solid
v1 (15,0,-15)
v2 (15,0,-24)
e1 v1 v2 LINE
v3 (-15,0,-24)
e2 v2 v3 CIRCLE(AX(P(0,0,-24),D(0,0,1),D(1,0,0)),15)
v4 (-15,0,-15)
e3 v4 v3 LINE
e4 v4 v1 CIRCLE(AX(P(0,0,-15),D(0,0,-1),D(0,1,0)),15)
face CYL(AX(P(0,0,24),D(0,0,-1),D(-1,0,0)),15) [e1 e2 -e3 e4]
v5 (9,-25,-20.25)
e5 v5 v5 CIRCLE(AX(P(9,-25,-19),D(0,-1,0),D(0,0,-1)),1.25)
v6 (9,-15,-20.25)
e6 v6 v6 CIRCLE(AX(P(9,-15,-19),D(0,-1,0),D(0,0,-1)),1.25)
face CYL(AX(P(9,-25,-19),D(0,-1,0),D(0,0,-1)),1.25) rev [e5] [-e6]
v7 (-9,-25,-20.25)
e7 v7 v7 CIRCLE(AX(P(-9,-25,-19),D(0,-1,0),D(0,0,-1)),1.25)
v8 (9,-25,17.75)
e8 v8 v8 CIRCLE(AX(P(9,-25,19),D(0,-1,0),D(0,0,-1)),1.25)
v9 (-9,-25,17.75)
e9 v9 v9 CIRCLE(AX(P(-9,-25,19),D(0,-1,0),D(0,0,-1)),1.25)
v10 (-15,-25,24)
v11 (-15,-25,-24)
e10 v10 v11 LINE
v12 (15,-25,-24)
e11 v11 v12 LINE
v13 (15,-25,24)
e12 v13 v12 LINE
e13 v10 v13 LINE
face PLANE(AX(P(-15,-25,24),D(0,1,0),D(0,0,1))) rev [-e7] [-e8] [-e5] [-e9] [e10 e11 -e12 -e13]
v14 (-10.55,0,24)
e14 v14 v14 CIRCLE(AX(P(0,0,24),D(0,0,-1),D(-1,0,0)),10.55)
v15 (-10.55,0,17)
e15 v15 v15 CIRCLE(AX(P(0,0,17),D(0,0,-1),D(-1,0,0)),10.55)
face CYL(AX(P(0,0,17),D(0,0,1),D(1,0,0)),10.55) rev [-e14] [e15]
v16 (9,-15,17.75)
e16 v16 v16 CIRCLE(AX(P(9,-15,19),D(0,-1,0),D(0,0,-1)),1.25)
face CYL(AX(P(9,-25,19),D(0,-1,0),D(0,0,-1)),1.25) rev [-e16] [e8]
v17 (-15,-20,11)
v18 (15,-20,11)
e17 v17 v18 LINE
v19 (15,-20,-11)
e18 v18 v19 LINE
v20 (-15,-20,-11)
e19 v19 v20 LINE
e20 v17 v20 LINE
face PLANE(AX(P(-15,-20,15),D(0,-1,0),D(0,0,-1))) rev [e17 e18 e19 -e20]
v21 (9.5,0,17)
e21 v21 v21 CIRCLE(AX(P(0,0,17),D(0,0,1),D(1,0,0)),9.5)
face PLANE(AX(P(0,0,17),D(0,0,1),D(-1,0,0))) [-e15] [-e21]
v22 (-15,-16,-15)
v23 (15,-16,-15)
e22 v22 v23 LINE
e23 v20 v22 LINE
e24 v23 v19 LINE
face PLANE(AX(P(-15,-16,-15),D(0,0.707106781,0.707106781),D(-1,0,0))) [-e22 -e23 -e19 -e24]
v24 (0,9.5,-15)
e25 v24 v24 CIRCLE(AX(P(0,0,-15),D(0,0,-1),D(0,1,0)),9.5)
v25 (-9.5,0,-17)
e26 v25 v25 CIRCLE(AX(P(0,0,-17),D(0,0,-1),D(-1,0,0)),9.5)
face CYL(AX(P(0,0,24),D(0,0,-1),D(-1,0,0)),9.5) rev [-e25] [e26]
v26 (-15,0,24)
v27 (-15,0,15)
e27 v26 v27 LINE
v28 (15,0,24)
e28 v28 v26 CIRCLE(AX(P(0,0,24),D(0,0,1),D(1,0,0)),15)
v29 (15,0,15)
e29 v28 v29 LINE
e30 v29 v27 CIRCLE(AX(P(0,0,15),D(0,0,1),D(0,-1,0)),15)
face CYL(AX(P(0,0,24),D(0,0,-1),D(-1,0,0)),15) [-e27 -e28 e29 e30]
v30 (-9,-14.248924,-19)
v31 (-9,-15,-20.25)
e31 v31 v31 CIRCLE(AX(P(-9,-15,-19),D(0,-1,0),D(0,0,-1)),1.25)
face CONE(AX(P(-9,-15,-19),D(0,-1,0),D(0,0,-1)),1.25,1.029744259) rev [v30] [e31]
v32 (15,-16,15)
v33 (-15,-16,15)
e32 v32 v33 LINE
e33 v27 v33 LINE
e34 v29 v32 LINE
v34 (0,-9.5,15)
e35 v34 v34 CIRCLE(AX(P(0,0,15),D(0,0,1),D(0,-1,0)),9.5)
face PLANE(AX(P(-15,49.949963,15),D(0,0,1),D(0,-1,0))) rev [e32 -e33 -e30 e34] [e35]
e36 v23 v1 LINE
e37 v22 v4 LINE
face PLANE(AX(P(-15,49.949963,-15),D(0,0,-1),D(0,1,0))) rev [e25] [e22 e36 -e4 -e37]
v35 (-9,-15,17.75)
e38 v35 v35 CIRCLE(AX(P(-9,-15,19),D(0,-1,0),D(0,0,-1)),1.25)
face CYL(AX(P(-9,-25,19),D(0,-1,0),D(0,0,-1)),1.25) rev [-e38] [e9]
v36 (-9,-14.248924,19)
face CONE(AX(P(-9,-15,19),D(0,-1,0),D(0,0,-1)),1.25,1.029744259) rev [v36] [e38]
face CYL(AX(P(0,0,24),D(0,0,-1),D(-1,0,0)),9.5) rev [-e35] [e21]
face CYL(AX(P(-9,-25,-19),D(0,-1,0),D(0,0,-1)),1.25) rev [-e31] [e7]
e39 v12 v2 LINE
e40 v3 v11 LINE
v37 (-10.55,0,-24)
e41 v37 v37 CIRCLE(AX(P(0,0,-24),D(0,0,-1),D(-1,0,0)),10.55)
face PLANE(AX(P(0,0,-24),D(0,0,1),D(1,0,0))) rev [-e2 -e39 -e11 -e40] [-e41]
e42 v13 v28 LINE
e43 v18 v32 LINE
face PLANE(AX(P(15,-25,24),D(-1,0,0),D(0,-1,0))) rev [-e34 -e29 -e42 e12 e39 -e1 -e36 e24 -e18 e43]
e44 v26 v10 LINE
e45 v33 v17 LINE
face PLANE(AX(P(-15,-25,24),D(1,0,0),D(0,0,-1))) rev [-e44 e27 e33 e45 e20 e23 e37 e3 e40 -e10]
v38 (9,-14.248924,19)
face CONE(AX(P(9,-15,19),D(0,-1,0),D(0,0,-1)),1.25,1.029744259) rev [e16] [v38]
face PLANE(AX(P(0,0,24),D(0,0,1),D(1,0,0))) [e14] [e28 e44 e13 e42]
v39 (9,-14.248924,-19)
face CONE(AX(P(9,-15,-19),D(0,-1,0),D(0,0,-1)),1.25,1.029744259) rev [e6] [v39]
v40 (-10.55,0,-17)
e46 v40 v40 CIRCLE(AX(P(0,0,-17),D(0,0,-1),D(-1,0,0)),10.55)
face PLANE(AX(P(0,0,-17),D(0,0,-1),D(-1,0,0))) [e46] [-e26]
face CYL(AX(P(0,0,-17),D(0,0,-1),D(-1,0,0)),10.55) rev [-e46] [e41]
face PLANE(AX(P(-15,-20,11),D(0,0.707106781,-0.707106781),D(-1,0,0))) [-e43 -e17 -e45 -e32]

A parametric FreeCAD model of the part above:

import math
import FreeCAD as App
import Part
import Sketcher


def edges_at(feature, points):
    """Names of the edges that pass closest to the given points."""
    edges = feature.Shape.Edges
    near = lambda p: min(range(len(edges)), key=lambda i: edges[i].distToShape(Part.Vertex(*p))[0])
    return sorted({f"Edge{near(p) + 1}" for p in points})


def add_polygon(sketch, points):
    """Adds a closed chain of lines whose ends are joined by coincident constraints."""
    first, n = sketch.GeometryCount, len(points)
    for a, b in zip(points, points[1:] + points[:1]):
        sketch.addGeometry(Part.LineSegment(App.Vector(*a, 0), App.Vector(*b, 0)), False)
    for i in range(n):
        sketch.addConstraint(Sketcher.Constraint("Coincident", first + i, 2, first + (i + 1) % n, 1))

doc = App.newDocument("Part")
body = doc.addObject("PartDesign::Body", "Body")

sketch1 = body.newObject("Sketcher::SketchObject", "Sketch")
sketch1.AttachmentSupport = (doc.getObject("XY_Plane"), [""])
sketch1.MapMode = "FlatFace"
sketch1.addGeometry(Part.LineSegment(App.Vector(-15, 0, 0), App.Vector(-15, -25, 0)), False)
sketch1.addGeometry(Part.LineSegment(App.Vector(-15, -25, 0), App.Vector(15, -25, 0)), False)
sketch1.addGeometry(Part.LineSegment(App.Vector(15, -25, 0), App.Vector(15, 0, 0)), False)
sketch1.addGeometry(Part.ArcOfCircle(Part.Circle(App.Vector(0, 0, 0), App.Vector(0, 0, 1), 15), math.radians(0), math.radians(180)), False)
sketch1.addGeometry(Part.Circle(App.Vector(0, 0, 0), App.Vector(0, 0, 1), 9.5), False)
sketch1.addConstraint(Sketcher.Constraint("Coincident", 0, 2, 1, 1))
sketch1.addConstraint(Sketcher.Constraint("Coincident", 1, 2, 2, 1))
sketch1.addConstraint(Sketcher.Constraint("Tangent", 2, 2, 3, 1))
sketch1.addConstraint(Sketcher.Constraint("Tangent", 3, 2, 0, 1))
sketch1.addConstraint(Sketcher.Constraint("Vertical", 0))
sketch1.addConstraint(Sketcher.Constraint("Horizontal", 1))
sketch1.addConstraint(Sketcher.Constraint("Vertical", 2))
sketch1.addConstraint(Sketcher.Constraint("Coincident", 3, 3, -1, 1))
sketch1.addConstraint(Sketcher.Constraint("Coincident", 4, 3, -1, 1))
sketch1.addConstraint(Sketcher.Constraint("Diameter", 4, 19.0))
sketch1.addConstraint(Sketcher.Constraint("Radius", 3, 15.0))
sketch1.addConstraint(Sketcher.Constraint("DistanceY", 0, 2, 0, 1, 25.0))
pad1 = body.newObject("PartDesign::Pad", "Pad")
pad1.Profile = sketch1
pad1.Length = 48
pad1.Midplane = True

sketch2 = body.newObject("Sketcher::SketchObject", "Sketch001")
sketch2.AttachmentSupport = (doc.getObject("YZ_Plane"), [""])
sketch2.MapMode = "FlatFace"
add_polygon(sketch2, [(49.949963, 15), (-20, 15), (-20, -15), (49.949963, -15)])
sketch2.addConstraint(Sketcher.Constraint("Horizontal", 0))
sketch2.addConstraint(Sketcher.Constraint("Vertical", 1))
sketch2.addConstraint(Sketcher.Constraint("Horizontal", 2))
sketch2.addConstraint(Sketcher.Constraint("Vertical", 3))
sketch2.addConstraint(Sketcher.Constraint("DistanceY", 1, 2, 1, 1, 30.0))
sketch2.addConstraint(Sketcher.Constraint("DistanceX", 0, 2, -1, 1, 20.0))
sketch2.addConstraint(Sketcher.Constraint("DistanceY", -1, 1, 0, 2, 15.0))
sketch2.addConstraint(Sketcher.Constraint("DistanceX", 0, 2, 0, 1, 69.949963))
pocket1 = body.newObject("PartDesign::Pocket", "Pocket")
pocket1.Profile = sketch2
pocket1.Type = "ThroughAll"
pocket1.Midplane = True

sketch3 = body.newObject("Sketcher::SketchObject", "Sketch002")
sketch3.AttachmentSupport = (doc.getObject("XY_Plane"), [""])
sketch3.MapMode = "FlatFace"
sketch3.AttachmentOffset = App.Placement(App.Vector(0, 0, -24), App.Rotation())
sketch3.addGeometry(Part.Circle(App.Vector(0, 0, 0), App.Vector(0, 0, 1), 10.55), False)
sketch3.addConstraint(Sketcher.Constraint("Coincident", 0, 3, -1, 1))
sketch3.addConstraint(Sketcher.Constraint("Diameter", 0, 21.1))
pocket2 = body.newObject("PartDesign::Pocket", "Pocket001")
pocket2.Profile = sketch3
pocket2.Length = 7
pocket2.Reversed = True
doc.recompute()

chamfer = body.newObject("PartDesign::Chamfer", "Chamfer")
chamfer.Base = (pocket2, edges_at(pocket2, [(0, -20, 15), (0, -20, -15)]))
chamfer.Size = 4

sketch4 = body.newObject("Sketcher::SketchObject", "Sketch003")
sketch4.AttachmentSupport = (doc.getObject("XZ_Plane"), [""])
sketch4.MapMode = "FlatFace"
sketch4.AttachmentOffset = App.Placement(App.Vector(0, 0, 25), App.Rotation())
sketch4.addGeometry(Part.Circle(App.Vector(-9, 19, 0), App.Vector(0, 0, 1), 1.25), False)
sketch4.addGeometry(Part.Circle(App.Vector(9, 19, 0), App.Vector(0, 0, 1), 1.25), False)
sketch4.addGeometry(Part.Circle(App.Vector(-9, -19, 0), App.Vector(0, 0, 1), 1.25), False)
sketch4.addGeometry(Part.Circle(App.Vector(9, -19, 0), App.Vector(0, 0, 1), 1.25), False)
sketch4.addConstraint(Sketcher.Constraint("Equal", 0, 1))
sketch4.addConstraint(Sketcher.Constraint("Equal", 1, 2))
sketch4.addConstraint(Sketcher.Constraint("Equal", 2, 3))
sketch4.addConstraint(Sketcher.Constraint("Symmetric", 1, 3, 2, 3, -1, 1))
sketch4.addConstraint(Sketcher.Constraint("Symmetric", 0, 3, 3, 3, -1, 1))
sketch4.addConstraint(Sketcher.Constraint("Symmetric", 0, 3, 1, 3, -2))
sketch4.addConstraint(Sketcher.Constraint("Diameter", 0, 2.5))
sketch4.addConstraint(Sketcher.Constraint("DistanceX", 0, 3, -1, 1, 9.0))
sketch4.addConstraint(Sketcher.Constraint("DistanceY", -1, 1, 0, 3, 19.0))
doc.recompute()
hole = body.newObject("PartDesign::Hole", "Hole")
hole.Profile = sketch4
hole.ThreadType = "None"
hole.Diameter = 2.5
hole.DepthType = "Dimension"
hole.Depth = 10
hole.DrillPoint = "Angled"
hole.DrillPointAngle = 118
doc.recompute()

mirrored = body.newObject("PartDesign::Mirrored", "Mirrored")
mirrored.Originals = [pocket2]
mirrored.MirrorPlane = (doc.getObject("XY_Plane"), [""])
body.Tip = mirrored

doc.recompute()
